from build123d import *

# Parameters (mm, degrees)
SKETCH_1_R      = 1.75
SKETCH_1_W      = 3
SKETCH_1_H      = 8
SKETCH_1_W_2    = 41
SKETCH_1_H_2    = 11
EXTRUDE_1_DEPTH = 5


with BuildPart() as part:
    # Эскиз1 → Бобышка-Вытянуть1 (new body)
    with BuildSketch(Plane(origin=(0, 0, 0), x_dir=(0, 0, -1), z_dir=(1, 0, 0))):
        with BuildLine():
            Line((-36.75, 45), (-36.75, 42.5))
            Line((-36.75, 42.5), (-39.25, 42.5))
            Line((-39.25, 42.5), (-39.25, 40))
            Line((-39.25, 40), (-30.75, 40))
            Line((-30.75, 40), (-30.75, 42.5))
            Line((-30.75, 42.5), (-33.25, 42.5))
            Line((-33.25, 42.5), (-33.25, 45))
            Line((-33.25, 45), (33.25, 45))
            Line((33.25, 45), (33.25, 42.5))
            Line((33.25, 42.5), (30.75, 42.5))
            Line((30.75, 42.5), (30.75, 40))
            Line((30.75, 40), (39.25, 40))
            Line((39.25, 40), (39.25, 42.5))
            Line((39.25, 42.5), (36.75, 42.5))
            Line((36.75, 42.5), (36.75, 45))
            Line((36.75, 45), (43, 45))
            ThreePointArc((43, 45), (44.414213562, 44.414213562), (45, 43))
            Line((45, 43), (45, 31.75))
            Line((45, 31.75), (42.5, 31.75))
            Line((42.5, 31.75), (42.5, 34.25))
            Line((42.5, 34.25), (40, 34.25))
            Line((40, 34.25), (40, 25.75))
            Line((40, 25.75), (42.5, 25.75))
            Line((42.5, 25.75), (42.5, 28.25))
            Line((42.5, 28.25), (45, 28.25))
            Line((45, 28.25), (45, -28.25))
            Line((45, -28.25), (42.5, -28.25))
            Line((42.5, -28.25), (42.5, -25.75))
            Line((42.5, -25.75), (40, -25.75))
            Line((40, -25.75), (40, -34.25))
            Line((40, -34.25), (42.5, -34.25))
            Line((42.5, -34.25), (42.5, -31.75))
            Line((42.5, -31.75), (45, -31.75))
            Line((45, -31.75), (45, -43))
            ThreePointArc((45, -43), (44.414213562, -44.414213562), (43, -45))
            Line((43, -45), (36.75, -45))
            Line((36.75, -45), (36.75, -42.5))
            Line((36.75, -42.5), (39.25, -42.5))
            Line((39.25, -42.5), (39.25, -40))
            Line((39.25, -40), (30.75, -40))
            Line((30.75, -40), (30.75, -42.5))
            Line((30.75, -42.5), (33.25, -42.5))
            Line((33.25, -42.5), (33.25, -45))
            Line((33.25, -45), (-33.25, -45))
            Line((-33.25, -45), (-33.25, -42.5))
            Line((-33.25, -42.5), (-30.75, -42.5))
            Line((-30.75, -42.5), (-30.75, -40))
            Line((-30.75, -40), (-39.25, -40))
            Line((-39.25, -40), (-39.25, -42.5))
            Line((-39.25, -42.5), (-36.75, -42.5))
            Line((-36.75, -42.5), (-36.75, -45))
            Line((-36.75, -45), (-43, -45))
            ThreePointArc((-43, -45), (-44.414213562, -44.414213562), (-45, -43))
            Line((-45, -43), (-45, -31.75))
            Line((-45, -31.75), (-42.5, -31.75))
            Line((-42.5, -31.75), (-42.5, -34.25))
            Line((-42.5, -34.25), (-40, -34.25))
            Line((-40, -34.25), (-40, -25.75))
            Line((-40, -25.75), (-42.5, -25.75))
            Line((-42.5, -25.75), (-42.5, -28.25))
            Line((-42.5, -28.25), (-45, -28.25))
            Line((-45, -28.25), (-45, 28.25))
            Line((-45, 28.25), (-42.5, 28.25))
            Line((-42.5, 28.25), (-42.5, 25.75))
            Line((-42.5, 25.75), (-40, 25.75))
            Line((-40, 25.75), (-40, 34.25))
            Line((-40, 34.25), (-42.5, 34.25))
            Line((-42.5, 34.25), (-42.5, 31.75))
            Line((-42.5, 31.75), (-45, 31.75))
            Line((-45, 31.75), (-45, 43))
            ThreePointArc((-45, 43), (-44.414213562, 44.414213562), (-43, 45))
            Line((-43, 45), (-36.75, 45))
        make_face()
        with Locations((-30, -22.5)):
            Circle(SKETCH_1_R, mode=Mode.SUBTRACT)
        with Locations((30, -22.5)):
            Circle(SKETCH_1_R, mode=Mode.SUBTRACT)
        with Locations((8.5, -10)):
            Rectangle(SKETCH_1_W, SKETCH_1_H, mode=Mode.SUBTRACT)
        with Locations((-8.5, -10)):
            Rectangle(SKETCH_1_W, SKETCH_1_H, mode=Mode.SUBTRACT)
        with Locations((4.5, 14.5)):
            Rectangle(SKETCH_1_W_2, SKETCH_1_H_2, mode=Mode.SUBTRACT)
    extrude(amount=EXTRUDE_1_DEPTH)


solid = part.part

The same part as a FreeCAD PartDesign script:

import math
import FreeCAD as App
import Part
import Sketcher
from FreeCAD import Vector

doc = App.newDocument("Part")
body = doc.addObject("PartDesign::Body", "Body")

# Sketch on YZ plane
sketch1 = body.newObject("Sketcher::SketchObject", "Sketch")
sketch1.AttachmentSupport = (doc.getObject("YZ_Plane"), [""])
sketch1.MapMode = "FlatFace"
sketch1.addGeometry([
    Part.LineSegment(Vector(42.5, 36.8, 0), Vector(45, 36.8, 0)),  # 0
    Part.LineSegment(Vector(45, 36.8, 0), Vector(45, 43, 0)),  # 1
    Part.ArcOfCircle(Part.Circle(Vector(43, 43, 0), Vector(0, 0, 1), 2), math.radians(0), math.radians(90)),  # 2
    Part.LineSegment(Vector(43, 45, 0), Vector(31.8, 45, 0)),  # 3
    Part.LineSegment(Vector(31.8, 45, 0), Vector(31.8, 42.5, 0)),  # 4
    Part.LineSegment(Vector(31.8, 42.5, 0), Vector(34.2, 42.5, 0)),  # 5
    Part.LineSegment(Vector(34.2, 42.5, 0), Vector(34.2, 40, 0)),  # 6
    Part.LineSegment(Vector(34.2, 40, 0), Vector(25.8, 40, 0)),  # 7
    Part.LineSegment(Vector(25.8, 40, 0), Vector(25.8, 42.5, 0)),  # 8
    Part.LineSegment(Vector(25.8, 42.5, 0), Vector(28.2, 42.5, 0)),  # 9
    Part.LineSegment(Vector(28.2, 42.5, 0), Vector(28.2, 45, 0)),  # 10
    Part.LineSegment(Vector(28.2, 45, 0), Vector(-28.2, 45, 0)),  # 11
    Part.LineSegment(Vector(-28.2, 45, 0), Vector(-28.2, 42.5, 0)),  # 12
    Part.LineSegment(Vector(-28.2, 42.5, 0), Vector(-25.8, 42.5, 0)),  # 13
    Part.LineSegment(Vector(-25.8, 42.5, 0), Vector(-25.8, 40, 0)),  # 14
    Part.LineSegment(Vector(-25.8, 40, 0), Vector(-34.2, 40, 0)),  # 15
    Part.LineSegment(Vector(-34.2, 40, 0), Vector(-34.2, 42.5, 0)),  # 16
    Part.LineSegment(Vector(-34.2, 42.5, 0), Vector(-31.8, 42.5, 0)),  # 17
    Part.LineSegment(Vector(-31.8, 42.5, 0), Vector(-31.8, 45, 0)),  # 18
    Part.LineSegment(Vector(-31.8, 45, 0), Vector(-43, 45, 0)),  # 19
    Part.ArcOfCircle(Part.Circle(Vector(-43, 43, 0), Vector(0, 0, 1), 2), math.radians(90), math.radians(180)),  # 20
    Part.LineSegment(Vector(-45, 43, 0), Vector(-45, 36.8, 0)),  # 21
    Part.LineSegment(Vector(-45, 36.8, 0), Vector(-42.5, 36.8, 0)),  # 22
    Part.LineSegment(Vector(-42.5, 36.8, 0), Vector(-42.5, 39.2, 0)),  # 23
    Part.LineSegment(Vector(-42.5, 39.2, 0), Vector(-40, 39.2, 0)),  # 24
    Part.LineSegment(Vector(-40, 39.2, 0), Vector(-40, 30.8, 0)),  # 25
    Part.LineSegment(Vector(-40, 30.8, 0), Vector(-42.5, 30.8, 0)),  # 26
    Part.LineSegment(Vector(-42.5, 30.8, 0), Vector(-42.5, 33.2, 0)),  # 27
    Part.LineSegment(Vector(-42.5, 33.2, 0), Vector(-45, 33.2, 0)),  # 28
    Part.LineSegment(Vector(-45, 33.2, 0), Vector(-45, -33.2, 0)),  # 29
    Part.LineSegment(Vector(-45, -33.2, 0), Vector(-42.5, -33.2, 0)),  # 30
    Part.LineSegment(Vector(-42.5, -33.2, 0), Vector(-42.5, -30.8, 0)),  # 31
    Part.LineSegment(Vector(-42.5, -30.8, 0), Vector(-40, -30.8, 0)),  # 32
    Part.LineSegment(Vector(-40, -30.8, 0), Vector(-40, -39.2, 0)),  # 33
    Part.LineSegment(Vector(-40, -39.2, 0), Vector(-42.5, -39.2, 0)),  # 34
    Part.LineSegment(Vector(-42.5, -39.2, 0), Vector(-42.5, -36.8, 0)),  # 35
    Part.LineSegment(Vector(-42.5, -36.8, 0), Vector(-45, -36.8, 0)),  # 36
    Part.LineSegment(Vector(-45, -36.8, 0), Vector(-45, -43, 0)),  # 37
    Part.ArcOfCircle(Part.Circle(Vector(-43, -43, 0), Vector(0, 0, 1), 2), math.radians(-180), math.radians(-90)),  # 38
    Part.LineSegment(Vector(-43, -45, 0), Vector(-31.8, -45, 0)),  # 39
    Part.LineSegment(Vector(-31.8, -45, 0), Vector(-31.8, -42.5, 0)),  # 40
    Part.LineSegment(Vector(-31.8, -42.5, 0), Vector(-34.2, -42.5, 0)),  # 41
    Part.LineSegment(Vector(-34.2, -42.5, 0), Vector(-34.2, -40, 0)),  # 42
    Part.LineSegment(Vector(-34.2, -40, 0), Vector(-25.8, -40, 0)),  # 43
    Part.LineSegment(Vector(-25.8, -40, 0), Vector(-25.8, -42.5, 0)),  # 44
    Part.LineSegment(Vector(-25.8, -42.5, 0), Vector(-28.2, -42.5, 0)),  # 45
    Part.LineSegment(Vector(-28.2, -42.5, 0), Vector(-28.2, -45, 0)),  # 46
    Part.LineSegment(Vector(-28.2, -45, 0), Vector(28.2, -45, 0)),  # 47
    Part.LineSegment(Vector(28.2, -45, 0), Vector(28.2, -42.5, 0)),  # 48
    Part.LineSegment(Vector(28.2, -42.5, 0), Vector(25.8, -42.5, 0)),  # 49
    Part.LineSegment(Vector(25.8, -42.5, 0), Vector(25.8, -40, 0)),  # 50
    Part.LineSegment(Vector(25.8, -40, 0), Vector(34.2, -40, 0)),  # 51
    Part.LineSegment(Vector(34.2, -40, 0), Vector(34.2, -42.5, 0)),  # 52
    Part.LineSegment(Vector(34.2, -42.5, 0), Vector(31.8, -42.5, 0)),  # 53
    Part.LineSegment(Vector(31.8, -42.5, 0), Vector(31.8, -45, 0)),  # 54
    Part.LineSegment(Vector(31.8, -45, 0), Vector(43, -45, 0)),  # 55
    Part.ArcOfCircle(Part.Circle(Vector(43, -43, 0), Vector(0, 0, 1), 2), math.radians(-90), math.radians(0)),  # 56
    Part.LineSegment(Vector(45, -43, 0), Vector(45, -36.8, 0)),  # 57
    Part.LineSegment(Vector(45, -36.8, 0), Vector(42.5, -36.8, 0)),  # 58
    Part.LineSegment(Vector(42.5, -36.8, 0), Vector(42.5, -39.2, 0)),  # 59
    Part.LineSegment(Vector(42.5, -39.2, 0), Vector(40, -39.2, 0)),  # 60
    Part.LineSegment(Vector(40, -39.2, 0), Vector(40, -30.8, 0)),  # 61
    Part.LineSegment(Vector(40, -30.8, 0), Vector(42.5, -30.8, 0)),  # 62
    Part.LineSegment(Vector(42.5, -30.8, 0), Vector(42.5, -33.2, 0)),  # 63
    Part.LineSegment(Vector(42.5, -33.2, 0), Vector(45, -33.2, 0)),  # 64
    Part.LineSegment(Vector(45, -33.2, 0), Vector(45, 33.2, 0)),  # 65
    Part.LineSegment(Vector(45, 33.2, 0), Vector(42.5, 33.2, 0)),  # 66
    Part.LineSegment(Vector(42.5, 33.2, 0), Vector(42.5, 30.8, 0)),  # 67
    Part.LineSegment(Vector(42.5, 30.8, 0), Vector(40, 30.8, 0)),  # 68
    Part.LineSegment(Vector(40, 30.8, 0), Vector(40, 39.2, 0)),  # 69
    Part.LineSegment(Vector(40, 39.2, 0), Vector(42.5, 39.2, 0)),  # 70
    Part.LineSegment(Vector(42.5, 39.2, 0), Vector(42.5, 36.8, 0)),  # 71
    Part.Circle(Vector(-22.5, -30, 0), Vector(0, 0, 1), 1.8),  # 72
    Part.LineSegment(Vector(-14, -7, 0), Vector(-6, -7, 0)),  # 73
    Part.LineSegment(Vector(-6, -7, 0), Vector(-6, -10, 0)),  # 74
    Part.LineSegment(Vector(-6, -10, 0), Vector(-14, -10, 0)),  # 75
    Part.LineSegment(Vector(-14, -10, 0), Vector(-14, -7, 0)),  # 76
    Part.Circle(Vector(-22.5, 30, 0), Vector(0, 0, 1), 1.8),  # 77
    Part.LineSegment(Vector(-14, 10, 0), Vector(-6, 10, 0)),  # 78
    Part.LineSegment(Vector(-6, 10, 0), Vector(-6, 7, 0)),  # 79
    Part.LineSegment(Vector(-6, 7, 0), Vector(-14, 7, 0)),  # 80
    Part.LineSegment(Vector(-14, 7, 0), Vector(-14, 10, 0)),  # 81
    Part.LineSegment(Vector(9, 16, 0), Vector(20, 16, 0)),  # 82
    Part.LineSegment(Vector(20, 16, 0), Vector(20, -25, 0)),  # 83
    Part.LineSegment(Vector(20, -25, 0), Vector(9, -25, 0)),  # 84
    Part.LineSegment(Vector(9, -25, 0), Vector(9, 16, 0)),  # 85
], False)
sketch1.addConstraint([
    Sketcher.Constraint("Coincident", 0, 2, 1, 1),
    Sketcher.Constraint("Tangent", 1, 2, 2, 1),
    Sketcher.Constraint("Tangent", 2, 2, 3, 1),
    Sketcher.Constraint("Coincident", 3, 2, 4, 1),
    Sketcher.Constraint("Coincident", 4, 2, 5, 1),
    Sketcher.Constraint("Coincident", 5, 2, 6, 1),
    Sketcher.Constraint("Coincident", 6, 2, 7, 1),
    Sketcher.Constraint("Coincident", 7, 2, 8, 1),
    Sketcher.Constraint("Coincident", 8, 2, 9, 1),
    Sketcher.Constraint("Coincident", 9, 2, 10, 1),
    Sketcher.Constraint("Coincident", 10, 2, 11, 1),
    Sketcher.Constraint("Coincident", 11, 2, 12, 1),
    Sketcher.Constraint("Coincident", 12, 2, 13, 1),
    Sketcher.Constraint("Coincident", 13, 2, 14, 1),
    Sketcher.Constraint("Coincident", 14, 2, 15, 1),
    Sketcher.Constraint("Coincident", 15, 2, 16, 1),
    Sketcher.Constraint("Coincident", 16, 2, 17, 1),
    Sketcher.Constraint("Coincident", 17, 2, 18, 1),
    Sketcher.Constraint("Coincident", 18, 2, 19, 1),
    Sketcher.Constraint("Tangent", 19, 2, 20, 1),
    Sketcher.Constraint("Tangent", 20, 2, 21, 1),
    Sketcher.Constraint("Coincident", 21, 2, 22, 1),
    Sketcher.Constraint("Coincident", 22, 2, 23, 1),
    Sketcher.Constraint("Coincident", 23, 2, 24, 1),
    Sketcher.Constraint("Coincident", 24, 2, 25, 1),
    Sketcher.Constraint("Coincident", 25, 2, 26, 1),
    Sketcher.Constraint("Coincident", 26, 2, 27, 1),
    Sketcher.Constraint("Coincident", 27, 2, 28, 1),
    Sketcher.Constraint("Coincident", 28, 2, 29, 1),
    Sketcher.Constraint("Coincident", 29, 2, 30, 1),
    Sketcher.Constraint("Coincident", 30, 2, 31, 1),
    Sketcher.Constraint("Coincident", 31, 2, 32, 1),
    Sketcher.Constraint("Coincident", 32, 2, 33, 1),
    Sketcher.Constraint("Coincident", 33, 2, 34, 1),
    Sketcher.Constraint("Coincident", 34, 2, 35, 1),
    Sketcher.Constraint("Coincident", 35, 2, 36, 1),
    Sketcher.Constraint("Coincident", 36, 2, 37, 1),
    Sketcher.Constraint("Tangent", 37, 2, 38, 1),
    Sketcher.Constraint("Tangent", 38, 2, 39, 1),
    Sketcher.Constraint("Coincident", 39, 2, 40, 1),
    Sketcher.Constraint("Coincident", 40, 2, 41, 1),
    Sketcher.Constraint("Coincident", 41, 2, 42, 1),
    Sketcher.Constraint("Coincident", 42, 2, 43, 1),
    Sketcher.Constraint("Coincident", 43, 2, 44, 1),
    Sketcher.Constraint("Coincident", 44, 2, 45, 1),
    Sketcher.Constraint("Coincident", 45, 2, 46, 1),
    Sketcher.Constraint("Coincident", 46, 2, 47, 1),
    Sketcher.Constraint("Coincident", 47, 2, 48, 1),
    Sketcher.Constraint("Coincident", 48, 2, 49, 1),
    Sketcher.Constraint("Coincident", 49, 2, 50, 1),
    Sketcher.Constraint("Coincident", 50, 2, 51, 1),
    Sketcher.Constraint("Coincident", 51, 2, 52, 1),
    Sketcher.Constraint("Coincident", 52, 2, 53, 1),
    Sketcher.Constraint("Coincident", 53, 2, 54, 1),
    Sketcher.Constraint("Coincident", 54, 2, 55, 1),
    Sketcher.Constraint("Tangent", 55, 2, 56, 1),
    Sketcher.Constraint("Tangent", 56, 2, 57, 1),
    Sketcher.Constraint("Coincident", 57, 2, 58, 1),
    Sketcher.Constraint("Coincident", 58, 2, 59, 1),
    Sketcher.Constraint("Coincident", 59, 2, 60, 1),
    Sketcher.Constraint("Coincident", 60, 2, 61, 1),
    Sketcher.Constraint("Coincident", 61, 2, 62, 1),
    Sketcher.Constraint("Coincident", 62, 2, 63, 1),
    Sketcher.Constraint("Coincident", 63, 2, 64, 1),
    Sketcher.Constraint("Coincident", 64, 2, 65, 1),
    Sketcher.Constraint("Coincident", 65, 2, 66, 1),
    Sketcher.Constraint("Coincident", 66, 2, 67, 1),
    Sketcher.Constraint("Coincident", 67, 2, 68, 1),
    Sketcher.Constraint("Coincident", 68, 2, 69, 1),
    Sketcher.Constraint("Coincident", 69, 2, 70, 1),
    Sketcher.Constraint("Coincident", 70, 2, 71, 1),
    Sketcher.Constraint("Coincident", 71, 2, 0, 1),
    Sketcher.Constraint("Coincident", 73, 2, 74, 1),
    Sketcher.Constraint("Coincident", 74, 2, 75, 1),
    Sketcher.Constraint("Coincident", 75, 2, 76, 1),
    Sketcher.Constraint("Coincident", 76, 2, 73, 1),
    Sketcher.Constraint("Coincident", 78, 2, 79, 1),
    Sketcher.Constraint("Coincident", 79, 2, 80, 1),
    Sketcher.Constraint("Coincident", 80, 2, 81, 1),
    Sketcher.Constraint("Coincident", 81, 2, 78, 1),
    Sketcher.Constraint("Coincident", 82, 2, 83, 1),
    Sketcher.Constraint("Coincident", 83, 2, 84, 1),
    Sketcher.Constraint("Coincident", 84, 2, 85, 1),
    Sketcher.Constraint("Coincident", 85, 2, 82, 1),
    Sketcher.Constraint("Horizontal", 0),
    Sketcher.Constraint("Vertical", 1),
    Sketcher.Constraint("Horizontal", 3),
    Sketcher.Constraint("Vertical", 4),
    Sketcher.Constraint("Horizontal", 5),
    Sketcher.Constraint("Vertical", 6),
    Sketcher.Constraint("Horizontal", 7),
    Sketcher.Constraint("Vertical", 8),
    Sketcher.Constraint("Horizontal", 9),
    Sketcher.Constraint("Vertical", 10),
    Sketcher.Constraint("Horizontal", 11),
    Sketcher.Constraint("Vertical", 12),
    Sketcher.Constraint("Horizontal", 13),
    Sketcher.Constraint("Vertical", 14),
    Sketcher.Constraint("Horizontal", 15),
    Sketcher.Constraint("Vertical", 16),
    Sketcher.Constraint("Horizontal", 17),
    Sketcher.Constraint("Vertical", 18),
    Sketcher.Constraint("Horizontal", 19),
    Sketcher.Constraint("Vertical", 21),
    Sketcher.Constraint("Horizontal", 22),
    Sketcher.Constraint("Vertical", 23),
    Sketcher.Constraint("Horizontal", 24),
    Sketcher.Constraint("Vertical", 25),
    Sketcher.Constraint("Horizontal", 26),
    Sketcher.Constraint("Vertical", 27),
    Sketcher.Constraint("Horizontal", 28),
    Sketcher.Constraint("Vertical", 29),
    Sketcher.Constraint("Horizontal", 30),
    Sketcher.Constraint("Vertical", 31),
    Sketcher.Constraint("Horizontal", 32),
    Sketcher.Constraint("Vertical", 33),
    Sketcher.Constraint("Horizontal", 34),
    Sketcher.Constraint("Vertical", 35),
    Sketcher.Constraint("Horizontal", 36),
    Sketcher.Constraint("Vertical", 37),
    Sketcher.Constraint("Horizontal", 39),
    Sketcher.Constraint("Vertical", 40),
    Sketcher.Constraint("Horizontal", 41),
    Sketcher.Constraint("Vertical", 42),
    Sketcher.Constraint("Horizontal", 43),
    Sketcher.Constraint("Vertical", 44),
    Sketcher.Constraint("Horizontal", 45),
    Sketcher.Constraint("Vertical", 46),
    Sketcher.Constraint("Horizontal", 47),
    Sketcher.Constraint("Vertical", 48),
    Sketcher.Constraint("Horizontal", 49),
    Sketcher.Constraint("Vertical", 50),
    Sketcher.Constraint("Horizontal", 51),
    Sketcher.Constraint("Vertical", 52),
    Sketcher.Constraint("Horizontal", 53),
    Sketcher.Constraint("Vertical", 54),
    Sketcher.Constraint("Horizontal", 55),
    Sketcher.Constraint("Vertical", 57),
    Sketcher.Constraint("Horizontal", 58),
    Sketcher.Constraint("Vertical", 59),
    Sketcher.Constraint("Horizontal", 60),
    Sketcher.Constraint("Vertical", 61),
    Sketcher.Constraint("Horizontal", 62),
    Sketcher.Constraint("Vertical", 63),
    Sketcher.Constraint("Horizontal", 64),
    Sketcher.Constraint("Vertical", 65),
    Sketcher.Constraint("Horizontal", 66),
    Sketcher.Constraint("Vertical", 67),
    Sketcher.Constraint("Horizontal", 68),
    Sketcher.Constraint("Vertical", 69),
    Sketcher.Constraint("Horizontal", 70),
    Sketcher.Constraint("Vertical", 71),
    Sketcher.Constraint("Horizontal", 73),
    Sketcher.Constraint("Vertical", 74),
    Sketcher.Constraint("Horizontal", 75),
    Sketcher.Constraint("Vertical", 76),
    Sketcher.Constraint("Horizontal", 78),
    Sketcher.Constraint("Vertical", 79),
    Sketcher.Constraint("Horizontal", 80),
    Sketcher.Constraint("Vertical", 81),
    Sketcher.Constraint("Horizontal", 82),
    Sketcher.Constraint("Vertical", 83),
    Sketcher.Constraint("Horizontal", 84),
    Sketcher.Constraint("Vertical", 85),
    Sketcher.Constraint("Equal", 2, 20),
    Sketcher.Constraint("Equal", 20, 38),
    Sketcher.Constraint("Equal", 38, 56),
    Sketcher.Constraint("Equal", 72, 77),
    Sketcher.Constraint("Symmetric", 2, 3, 38, 3, -1, 1),
    Sketcher.Constraint("Symmetric", 20, 3, 56, 3, -1, 1),
    Sketcher.Constraint("Symmetric", 4, 2, 40, 2, -1, 1),
    Sketcher.Constraint("Symmetric", 6, 2, 42, 2, -1, 1),
    Sketcher.Constraint("Symmetric", 8, 2, 44, 2, -1, 1),
    Sketcher.Constraint("Symmetric", 10, 2, 46, 2, -1, 1),
    Sketcher.Constraint("Symmetric", 12, 2, 48, 2, -1, 1),
    Sketcher.Constraint("Symmetric", 14, 2, 50, 2, -1, 1),
    Sketcher.Constraint("Symmetric", 16, 2, 52, 2, -1, 1),
    Sketcher.Constraint("Symmetric", 22, 2, 58, 2, -1, 1),
    Sketcher.Constraint("Symmetric", 24, 2, 60, 2, -1, 1),
    Sketcher.Constraint("Symmetric", 26, 2, 62, 2, -1, 1),
    Sketcher.Constraint("Symmetric", 28, 2, 64, 2, -1, 1),
    Sketcher.Constraint("Symmetric", 30, 2, 66, 2, -1, 1),
    Sketcher.Constraint("Symmetric", 32, 2, 68, 2, -1, 1),
    Sketcher.Constraint("Symmetric", 34, 2, 70, 2, -1, 1),
    Sketcher.Constraint("Symmetric", 2, 3, 20, 3, -2),
    Sketcher.Constraint("Symmetric", 9, 2, 12, 2, -2),
    Sketcher.Constraint("Symmetric", 7, 2, 14, 2, -2),
    Sketcher.Constraint("Symmetric", 5, 2, 16, 2, -2),
    Sketcher.Constraint("Symmetric", 35, 2, 58, 2, -2),
    Sketcher.Constraint("Symmetric", 33, 2, 60, 2, -2),
    Sketcher.Constraint("Symmetric", 31, 2, 62, 2, -2),
    Sketcher.Constraint("Symmetric", 72, 3, 77, 3, -1),
    Sketcher.Constraint("Symmetric", 74, 2, 78, 2, -1),
    Sketcher.Constraint("Symmetric", 76, 2, 80, 2, -1),
    Sketcher.Constraint("Horizontal", 5, 2, 8, 2),
    Sketcher.Constraint("Horizontal", 3, 2, 10, 2),
    Sketcher.Constraint("Horizontal", 0, 2, 21, 2),
    Sketcher.Constraint("Horizontal", 30, 2, 63, 2),
    Sketcher.Constraint("Vertical", 23, 2, 26, 2),
    Sketcher.Constraint("Vertical", 21, 2, 28, 2),
    Sketcher.Constraint("Vertical", 18, 2, 39, 2),
    Sketcher.Constraint("Vertical", 4, 2, 53, 2),
    Sketcher.Constraint("Equal", 0, 5),
    Sketcher.Constraint("Equal", 5, 9),
    Sketcher.Constraint("Equal", 22, 24),
    Sketcher.Constraint("Equal", 70, 4),
    Sketcher.Constraint("Equal", 4, 6),
    Sketcher.Constraint("Equal", 18, 23),
    Sketcher.Constraint("Equal", 51, 25),
    Sketcher.Constraint("Equal", 23, 27),
    Sketcher.Constraint("Radius", 2, 2.0),
    Sketcher.Constraint("Diameter", 72, 3.5),
    Sketcher.Constraint("DistanceX", 73, 1, 73, 2, 8.0),
    Sketcher.Constraint("DistanceX", 82, 1, 82, 2, 11.0),
    Sketcher.Constraint("DistanceY", 74, 2, 74, 1, 3.0),
    Sketcher.Constraint("DistanceY", 83, 2, 83, 1, 41.0),
    Sketcher.Constraint("DistanceX", 0, 1, 0, 2, 2.5),
    Sketcher.Constraint("DistanceX", 7, 2, 7, 1, 8.5),
    Sketcher.Constraint("DistanceX", 11, 2, 11, 1, 56.5),
    Sketcher.Constraint("DistanceY", 29, 2, 29, 1, 66.5),
    Sketcher.Constraint("DistanceX", -1, 1, 2, 3, 43.0),
    Sketcher.Constraint("DistanceY", -1, 1, 2, 3, 43.0),
    Sketcher.Constraint("DistanceY", 72, 3, -1, 1, 30.0),
    Sketcher.Constraint("DistanceX", 73, 2, -1, 1, 6.0),
    Sketcher.Constraint("DistanceY", 73, 2, -1, 1, 7.0),
    Sketcher.Constraint("DistanceX", -1, 1, 82, 2, 20.0),
    Sketcher.Constraint("DistanceY", -1, 1, 82, 2, 16.0),
    Sketcher.Constraint("DistanceX", 72, 3, -1, 1, 22.5),
])
pad1 = body.newObject("PartDesign::Pad", "Pad")
pad1.Profile = sketch1
pad1.Length = 5

doc.recompute()
